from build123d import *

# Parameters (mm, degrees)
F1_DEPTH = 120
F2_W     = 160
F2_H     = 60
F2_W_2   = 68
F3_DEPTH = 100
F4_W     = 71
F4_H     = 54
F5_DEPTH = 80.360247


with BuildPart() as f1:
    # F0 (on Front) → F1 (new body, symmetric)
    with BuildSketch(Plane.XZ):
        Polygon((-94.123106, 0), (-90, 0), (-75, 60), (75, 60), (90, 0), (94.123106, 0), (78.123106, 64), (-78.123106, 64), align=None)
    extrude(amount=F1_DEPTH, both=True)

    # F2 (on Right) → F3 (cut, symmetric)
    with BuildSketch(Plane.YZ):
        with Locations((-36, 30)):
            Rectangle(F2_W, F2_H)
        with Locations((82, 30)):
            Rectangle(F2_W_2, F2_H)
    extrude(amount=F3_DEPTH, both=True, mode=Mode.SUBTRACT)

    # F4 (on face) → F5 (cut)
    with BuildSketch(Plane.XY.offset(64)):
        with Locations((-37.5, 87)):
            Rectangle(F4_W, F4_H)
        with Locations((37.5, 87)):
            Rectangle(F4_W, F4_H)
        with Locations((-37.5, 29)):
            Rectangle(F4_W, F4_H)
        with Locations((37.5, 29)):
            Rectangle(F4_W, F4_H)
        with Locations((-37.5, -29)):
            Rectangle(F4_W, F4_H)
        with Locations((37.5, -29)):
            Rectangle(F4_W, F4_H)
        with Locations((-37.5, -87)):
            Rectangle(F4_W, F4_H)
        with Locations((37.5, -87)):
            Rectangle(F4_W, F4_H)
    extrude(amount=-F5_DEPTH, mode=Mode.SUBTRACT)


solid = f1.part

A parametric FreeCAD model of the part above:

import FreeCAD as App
import Part
import Sketcher

doc = App.newDocument("Part")
body = doc.addObject("PartDesign::Body", "Body")

# Sketch on XZ plane
sketch1 = body.newObject("Sketcher::SketchObject", "Sketch")
sketch1.AttachmentSupport = (doc.getObject("XZ_Plane"), [""])
sketch1.MapMode = "FlatFace"
sketch1.addGeometry([
    Part.LineSegment(App.Vector(-94.1, 0, 0), App.Vector(-90, 0, 0)),  # 0
    Part.LineSegment(App.Vector(-90, 0, 0), App.Vector(-75, 60, 0)),  # 1
    Part.LineSegment(App.Vector(-75, 60, 0), App.Vector(75, 60, 0)),  # 2
    Part.LineSegment(App.Vector(75, 60, 0), App.Vector(90, 0, 0)),  # 3
    Part.LineSegment(App.Vector(90, 0, 0), App.Vector(94.1, 0, 0)),  # 4
    Part.LineSegment(App.Vector(94.1, 0, 0), App.Vector(78.1, 64, 0)),  # 5
    Part.LineSegment(App.Vector(78.1, 64, 0), App.Vector(-78.1, 64, 0)),  # 6
    Part.LineSegment(App.Vector(-78.1, 64, 0), App.Vector(-94.1, 0, 0)),  # 7
], False)
sketch1.addConstraint([
    Sketcher.Constraint("Coincident", 0, 2, 1, 1),
    Sketcher.Constraint("Coincident", 1, 2, 2, 1),
    Sketcher.Constraint("Coincident", 2, 2, 3, 1),
    Sketcher.Constraint("Coincident", 3, 2, 4, 1),
    Sketcher.Constraint("Coincident", 4, 2, 5, 1),
    Sketcher.Constraint("Coincident", 5, 2, 6, 1),
    Sketcher.Constraint("Coincident", 6, 2, 7, 1),
    Sketcher.Constraint("Coincident", 7, 2, 0, 1),
    Sketcher.Constraint("Horizontal", 0),
    Sketcher.Constraint("Horizontal", 2),
    Sketcher.Constraint("Horizontal", 4),
    Sketcher.Constraint("Horizontal", 6),
    Sketcher.Constraint("Symmetric", 0, 2, 3, 2, -1, 1),
    Sketcher.Constraint("Symmetric", 4, 2, 7, 2, -2),
    Sketcher.Constraint("Parallel", 3, 5),
    Sketcher.Constraint("Parallel", 1, 7),
    Sketcher.Constraint("Equal", 1, 3),
    Sketcher.Constraint("DistanceX", 2, 1, 2, 2, 150.0),
    Sketcher.Constraint("DistanceX", 0, 2, -1, 1, 90.0),
    Sketcher.Constraint("DistanceY", -1, 1, 1, 2, 60.0),
    Sketcher.Constraint("DistanceY", -1, 1, 5, 2, 64.0),
    Sketcher.Constraint("DistanceX", 0, 1, 0, 2, 4.123106),
])
pad1 = body.newObject("PartDesign::Pad", "Pad")
pad1.Profile = sketch1
pad1.Length = 240
pad1.Midplane = True

# Sketch on YZ plane
sketch2 = body.newObject("Sketcher::SketchObject", "Sketch001")
sketch2.AttachmentSupport = (doc.getObject("YZ_Plane"), [""])
sketch2.MapMode = "FlatFace"
sketch2.addGeometry([
    Part.LineSegment(App.Vector(-116, 60, 0), App.Vector(-116, 0, 0)),  # 0
    Part.LineSegment(App.Vector(-116, 0, 0), App.Vector(44, 0, 0)),  # 1
    Part.LineSegment(App.Vector(44, 0, 0), App.Vector(44, 60, 0)),  # 2
    Part.LineSegment(App.Vector(44, 60, 0), App.Vector(-116, 60, 0)),  # 3
    Part.LineSegment(App.Vector(48, 60, 0), App.Vector(48, 0, 0)),  # 4
    Part.LineSegment(App.Vector(48, 0, 0), App.Vector(116, 0, 0)),  # 5
    Part.LineSegment(App.Vector(116, 0, 0), App.Vector(116, 60, 0)),  # 6
    Part.LineSegment(App.Vector(116, 60, 0), App.Vector(48, 60, 0)),  # 7
], False)
sketch2.addConstraint([
    Sketcher.Constraint("Coincident", 0, 2, 1, 1),
    Sketcher.Constraint("Coincident", 1, 2, 2, 1),
    Sketcher.Constraint("Coincident", 2, 2, 3, 1),
    Sketcher.Constraint("Coincident", 3, 2, 0, 1),
    Sketcher.Constraint("Coincident", 4, 2, 5, 1),
    Sketcher.Constraint("Coincident", 5, 2, 6, 1),
    Sketcher.Constraint("Coincident", 6, 2, 7, 1),
    Sketcher.Constraint("Coincident", 7, 2, 4, 1),
    Sketcher.Constraint("Vertical", 0),
    Sketcher.Constraint("Horizontal", 1),
    Sketcher.Constraint("Vertical", 2),
    Sketcher.Constraint("Horizontal", 3),
    Sketcher.Constraint("Vertical", 4),
    Sketcher.Constraint("Horizontal", 5),
    Sketcher.Constraint("Vertical", 6),
    Sketcher.Constraint("Horizontal", 7),
    Sketcher.Constraint("Symmetric", 0, 2, 5, 2, -1, 1),
    Sketcher.Constraint("PointOnObject", 0, 2, -1),
    Sketcher.Constraint("Horizontal", 3, 2, 6, 2),
    Sketcher.Constraint("DistanceX", 1, 1, 1, 2, 160.0),
    Sketcher.Constraint("DistanceX", 5, 1, 5, 2, 68.0),
    Sketcher.Constraint("DistanceY", 0, 2, 0, 1, 60.0),
    Sketcher.Constraint("DistanceX", 0, 2, -1, 1, 116.0),
])
pocket1 = body.newObject("PartDesign::Pocket", "Pocket")
pocket1.Profile = sketch2
pocket1.Length = 200
pocket1.Midplane = True

# Sketch on XY plane
sketch3 = body.newObject("Sketcher::SketchObject", "Sketch002")
sketch3.AttachmentSupport = (doc.getObject("XY_Plane"), [""])
sketch3.MapMode = "FlatFace"
sketch3.AttachmentOffset = App.Placement(App.Vector(0, 0, 64), App.Rotation())
sketch3.addGeometry([
    Part.LineSegment(App.Vector(-73, 114, 0), App.Vector(-73, 60, 0)),  # 0
    Part.LineSegment(App.Vector(-73, 60, 0), App.Vector(-2, 60, 0)),  # 1
    Part.LineSegment(App.Vector(-2, 60, 0), App.Vector(-2, 114, 0)),  # 2
    Part.LineSegment(App.Vector(-2, 114, 0), App.Vector(-73, 114, 0)),  # 3
    Part.LineSegment(App.Vector(2, 114, 0), App.Vector(2, 60, 0)),  # 4
    Part.LineSegment(App.Vector(2, 60, 0), App.Vector(73, 60, 0)),  # 5
    Part.LineSegment(App.Vector(73, 60, 0), App.Vector(73, 114, 0)),  # 6
    Part.LineSegment(App.Vector(73, 114, 0), App.Vector(2, 114, 0)),  # 7
    Part.LineSegment(App.Vector(-73, 56, 0), App.Vector(-73, 2, 0)),  # 8
    Part.LineSegment(App.Vector(-73, 2, 0), App.Vector(-2, 2, 0)),  # 9
    Part.LineSegment(App.Vector(-2, 2, 0), App.Vector(-2, 56, 0)),  # 10
    Part.LineSegment(App.Vector(-2, 56, 0), App.Vector(-73, 56, 0)),  # 11
    Part.LineSegment(App.Vector(2, 56, 0), App.Vector(2, 2, 0)),  # 12
    Part.LineSegment(App.Vector(2, 2, 0), App.Vector(73, 2, 0)),  # 13
    Part.LineSegment(App.Vector(73, 2, 0), App.Vector(73, 56, 0)),  # 14
    Part.LineSegment(App.Vector(73, 56, 0), App.Vector(2, 56, 0)),  # 15
    Part.LineSegment(App.Vector(-73, -2, 0), App.Vector(-73, -56, 0)),  # 16
    Part.LineSegment(App.Vector(-73, -56, 0), App.Vector(-2, -56, 0)),  # 17
    Part.LineSegment(App.Vector(-2, -56, 0), App.Vector(-2, -2, 0)),  # 18
    Part.LineSegment(App.Vector(-2, -2, 0), App.Vector(-73, -2, 0)),  # 19
    Part.LineSegment(App.Vector(2, -2, 0), App.Vector(2, -56, 0)),  # 20
    Part.LineSegment(App.Vector(2, -56, 0), App.Vector(73, -56, 0)),  # 21
    Part.LineSegment(App.Vector(73, -56, 0), App.Vector(73, -2, 0)),  # 22
    Part.LineSegment(App.Vector(73, -2, 0), App.Vector(2, -2, 0)),  # 23
    Part.LineSegment(App.Vector(-73, -60, 0), App.Vector(-73, -114, 0)),  # 24
    Part.LineSegment(App.Vector(-73, -114, 0), App.Vector(-2, -114, 0)),  # 25
    Part.LineSegment(App.Vector(-2, -114, 0), App.Vector(-2, -60, 0)),  # 26
    Part.LineSegment(App.Vector(-2, -60, 0), App.Vector(-73, -60, 0)),  # 27
    Part.LineSegment(App.Vector(2, -60, 0), App.Vector(2, -114, 0)),  # 28
    Part.LineSegment(App.Vector(2, -114, 0), App.Vector(73, -114, 0)),  # 29
    Part.LineSegment(App.Vector(73, -114, 0), App.Vector(73, -60, 0)),  # 30
    Part.LineSegment(App.Vector(73, -60, 0), App.Vector(2, -60, 0)),  # 31
], False)
sketch3.addConstraint([
    Sketcher.Constraint("Coincident", 0, 2, 1, 1),
    Sketcher.Constraint("Coincident", 1, 2, 2, 1),
    Sketcher.Constraint("Coincident", 2, 2, 3, 1),
    Sketcher.Constraint("Coincident", 3, 2, 0, 1),
    Sketcher.Constraint("Coincident", 4, 2, 5, 1),
    Sketcher.Constraint("Coincident", 5, 2, 6, 1),
    Sketcher.Constraint("Coincident", 6, 2, 7, 1),
    Sketcher.Constraint("Coincident", 7, 2, 4, 1),
    Sketcher.Constraint("Coincident", 8, 2, 9, 1),
    Sketcher.Constraint("Coincident", 9, 2, 10, 1),
    Sketcher.Constraint("Coincident", 10, 2, 11, 1),
    Sketcher.Constraint("Coincident", 11, 2, 8, 1),
    Sketcher.Constraint("Coincident", 12, 2, 13, 1),
    Sketcher.Constraint("Coincident", 13, 2, 14, 1),
    Sketcher.Constraint("Coincident", 14, 2, 15, 1),
    Sketcher.Constraint("Coincident", 15, 2, 12, 1),
    Sketcher.Constraint("Coincident", 16, 2, 17, 1),
    Sketcher.Constraint("Coincident", 17, 2, 18, 1),
    Sketcher.Constraint("Coincident", 18, 2, 19, 1),
    Sketcher.Constraint("Coincident", 19, 2, 16, 1),
    Sketcher.Constraint("Coincident", 20, 2, 21, 1),
    Sketcher.Constraint("Coincident", 21, 2, 22, 1),
    Sketcher.Constraint("Coincident", 22, 2, 23, 1),
    Sketcher.Constraint("Coincident", 23, 2, 20, 1),
    Sketcher.Constraint("Coincident", 24, 2, 25, 1),
    Sketcher.Constraint("Coincident", 25, 2, 26, 1),
    Sketcher.Constraint("Coincident", 26, 2, 27, 1),
    Sketcher.Constraint("Coincident", 27, 2, 24, 1),
    Sketcher.Constraint("Coincident", 28, 2, 29, 1),
    Sketcher.Constraint("Coincident", 29, 2, 30, 1),
    Sketcher.Constraint("Coincident", 30, 2, 31, 1),
    Sketcher.Constraint("Coincident", 31, 2, 28, 1),
    Sketcher.Constraint("Vertical", 0),
    Sketcher.Constraint("Horizontal", 1),
    Sketcher.Constraint("Vertical", 2),
    Sketcher.Constraint("Horizontal", 3),
    Sketcher.Constraint("Vertical", 4),
    Sketcher.Constraint("Horizontal", 5),
    Sketcher.Constraint("Vertical", 6),
    Sketcher.Constraint("Horizontal", 7),
    Sketcher.Constraint("Vertical", 8),
    Sketcher.Constraint("Horizontal", 9),
    Sketcher.Constraint("Vertical", 10),
    Sketcher.Constraint("Horizontal", 11),
    Sketcher.Constraint("Vertical", 12),
    Sketcher.Constraint("Horizontal", 13),
    Sketcher.Constraint("Vertical", 14),
    Sketcher.Constraint("Horizontal", 15),
    Sketcher.Constraint("Vertical", 16),
    Sketcher.Constraint("Horizontal", 17),
    Sketcher.Constraint("Vertical", 18),
    Sketcher.Constraint("Horizontal", 19),
    Sketcher.Constraint("Vertical", 20),
    Sketcher.Constraint("Horizontal", 21),
    Sketcher.Constraint("Vertical", 22),
    Sketcher.Constraint("Horizontal", 23),
    Sketcher.Constraint("Vertical", 24),
    Sketcher.Constraint("Horizontal", 25),
    Sketcher.Constraint("Vertical", 26),
    Sketcher.Constraint("Horizontal", 27),
    Sketcher.Constraint("Vertical", 28),
    Sketcher.Constraint("Horizontal", 29),
    Sketcher.Constraint("Vertical", 30),
    Sketcher.Constraint("Horizontal", 31),
    Sketcher.Constraint("Symmetric", 14, 2, 16, 2, -1, 1),
    Sketcher.Constraint("Symmetric", 12, 2, 18, 2, -1, 1),
    Sketcher.Constraint("Symmetric", 10, 2, 20, 2, -1, 1),
    Sketcher.Constraint("Symmetric", 8, 2, 22, 2, -1, 1),
    Sketcher.Constraint("Symmetric", 6, 2, 24, 2, -1, 1),
    Sketcher.Constraint("Symmetric", 4, 2, 26, 2, -1, 1),
    Sketcher.Constraint("Symmetric", 2, 2, 28, 2, -1, 1),
    Sketcher.Constraint("Symmetric", 0, 2, 30, 2, -1, 1),
    Sketcher.Constraint("Symmetric", 1, 2, 4, 2, -2),
    Sketcher.Constraint("Symmetric", 3, 2, 6, 2, -2),
    Sketcher.Constraint("Symmetric", 9, 2, 12, 2, -2),
    Sketcher.Constraint("Symmetric", 11, 2, 14, 2, -2),
    Sketcher.Constraint("Vertical", 3, 2, 8, 2),
    Sketcher.Constraint("Vertical", 2, 2, 9, 2),
    Sketcher.Constraint("Equal", 6, 8),
    Sketcher.Constraint("DistanceX", 1, 1, 1, 2, 71.0),
    Sketcher.Constraint("DistanceY", 0, 2, 0, 1, 54.0),
    Sketcher.Constraint("DistanceX", 0, 2, -1, 1, 73.0),
    Sketcher.Constraint("DistanceY", -1, 1, 0, 2, 60.0),
    Sketcher.Constraint("DistanceY", -1, 1, 8, 2, 2.0),
])
pocket2 = body.newObject("PartDesign::Pocket", "Pocket001")
pocket2.Profile = sketch3
pocket2.Length = 80.360247

doc.recompute()
